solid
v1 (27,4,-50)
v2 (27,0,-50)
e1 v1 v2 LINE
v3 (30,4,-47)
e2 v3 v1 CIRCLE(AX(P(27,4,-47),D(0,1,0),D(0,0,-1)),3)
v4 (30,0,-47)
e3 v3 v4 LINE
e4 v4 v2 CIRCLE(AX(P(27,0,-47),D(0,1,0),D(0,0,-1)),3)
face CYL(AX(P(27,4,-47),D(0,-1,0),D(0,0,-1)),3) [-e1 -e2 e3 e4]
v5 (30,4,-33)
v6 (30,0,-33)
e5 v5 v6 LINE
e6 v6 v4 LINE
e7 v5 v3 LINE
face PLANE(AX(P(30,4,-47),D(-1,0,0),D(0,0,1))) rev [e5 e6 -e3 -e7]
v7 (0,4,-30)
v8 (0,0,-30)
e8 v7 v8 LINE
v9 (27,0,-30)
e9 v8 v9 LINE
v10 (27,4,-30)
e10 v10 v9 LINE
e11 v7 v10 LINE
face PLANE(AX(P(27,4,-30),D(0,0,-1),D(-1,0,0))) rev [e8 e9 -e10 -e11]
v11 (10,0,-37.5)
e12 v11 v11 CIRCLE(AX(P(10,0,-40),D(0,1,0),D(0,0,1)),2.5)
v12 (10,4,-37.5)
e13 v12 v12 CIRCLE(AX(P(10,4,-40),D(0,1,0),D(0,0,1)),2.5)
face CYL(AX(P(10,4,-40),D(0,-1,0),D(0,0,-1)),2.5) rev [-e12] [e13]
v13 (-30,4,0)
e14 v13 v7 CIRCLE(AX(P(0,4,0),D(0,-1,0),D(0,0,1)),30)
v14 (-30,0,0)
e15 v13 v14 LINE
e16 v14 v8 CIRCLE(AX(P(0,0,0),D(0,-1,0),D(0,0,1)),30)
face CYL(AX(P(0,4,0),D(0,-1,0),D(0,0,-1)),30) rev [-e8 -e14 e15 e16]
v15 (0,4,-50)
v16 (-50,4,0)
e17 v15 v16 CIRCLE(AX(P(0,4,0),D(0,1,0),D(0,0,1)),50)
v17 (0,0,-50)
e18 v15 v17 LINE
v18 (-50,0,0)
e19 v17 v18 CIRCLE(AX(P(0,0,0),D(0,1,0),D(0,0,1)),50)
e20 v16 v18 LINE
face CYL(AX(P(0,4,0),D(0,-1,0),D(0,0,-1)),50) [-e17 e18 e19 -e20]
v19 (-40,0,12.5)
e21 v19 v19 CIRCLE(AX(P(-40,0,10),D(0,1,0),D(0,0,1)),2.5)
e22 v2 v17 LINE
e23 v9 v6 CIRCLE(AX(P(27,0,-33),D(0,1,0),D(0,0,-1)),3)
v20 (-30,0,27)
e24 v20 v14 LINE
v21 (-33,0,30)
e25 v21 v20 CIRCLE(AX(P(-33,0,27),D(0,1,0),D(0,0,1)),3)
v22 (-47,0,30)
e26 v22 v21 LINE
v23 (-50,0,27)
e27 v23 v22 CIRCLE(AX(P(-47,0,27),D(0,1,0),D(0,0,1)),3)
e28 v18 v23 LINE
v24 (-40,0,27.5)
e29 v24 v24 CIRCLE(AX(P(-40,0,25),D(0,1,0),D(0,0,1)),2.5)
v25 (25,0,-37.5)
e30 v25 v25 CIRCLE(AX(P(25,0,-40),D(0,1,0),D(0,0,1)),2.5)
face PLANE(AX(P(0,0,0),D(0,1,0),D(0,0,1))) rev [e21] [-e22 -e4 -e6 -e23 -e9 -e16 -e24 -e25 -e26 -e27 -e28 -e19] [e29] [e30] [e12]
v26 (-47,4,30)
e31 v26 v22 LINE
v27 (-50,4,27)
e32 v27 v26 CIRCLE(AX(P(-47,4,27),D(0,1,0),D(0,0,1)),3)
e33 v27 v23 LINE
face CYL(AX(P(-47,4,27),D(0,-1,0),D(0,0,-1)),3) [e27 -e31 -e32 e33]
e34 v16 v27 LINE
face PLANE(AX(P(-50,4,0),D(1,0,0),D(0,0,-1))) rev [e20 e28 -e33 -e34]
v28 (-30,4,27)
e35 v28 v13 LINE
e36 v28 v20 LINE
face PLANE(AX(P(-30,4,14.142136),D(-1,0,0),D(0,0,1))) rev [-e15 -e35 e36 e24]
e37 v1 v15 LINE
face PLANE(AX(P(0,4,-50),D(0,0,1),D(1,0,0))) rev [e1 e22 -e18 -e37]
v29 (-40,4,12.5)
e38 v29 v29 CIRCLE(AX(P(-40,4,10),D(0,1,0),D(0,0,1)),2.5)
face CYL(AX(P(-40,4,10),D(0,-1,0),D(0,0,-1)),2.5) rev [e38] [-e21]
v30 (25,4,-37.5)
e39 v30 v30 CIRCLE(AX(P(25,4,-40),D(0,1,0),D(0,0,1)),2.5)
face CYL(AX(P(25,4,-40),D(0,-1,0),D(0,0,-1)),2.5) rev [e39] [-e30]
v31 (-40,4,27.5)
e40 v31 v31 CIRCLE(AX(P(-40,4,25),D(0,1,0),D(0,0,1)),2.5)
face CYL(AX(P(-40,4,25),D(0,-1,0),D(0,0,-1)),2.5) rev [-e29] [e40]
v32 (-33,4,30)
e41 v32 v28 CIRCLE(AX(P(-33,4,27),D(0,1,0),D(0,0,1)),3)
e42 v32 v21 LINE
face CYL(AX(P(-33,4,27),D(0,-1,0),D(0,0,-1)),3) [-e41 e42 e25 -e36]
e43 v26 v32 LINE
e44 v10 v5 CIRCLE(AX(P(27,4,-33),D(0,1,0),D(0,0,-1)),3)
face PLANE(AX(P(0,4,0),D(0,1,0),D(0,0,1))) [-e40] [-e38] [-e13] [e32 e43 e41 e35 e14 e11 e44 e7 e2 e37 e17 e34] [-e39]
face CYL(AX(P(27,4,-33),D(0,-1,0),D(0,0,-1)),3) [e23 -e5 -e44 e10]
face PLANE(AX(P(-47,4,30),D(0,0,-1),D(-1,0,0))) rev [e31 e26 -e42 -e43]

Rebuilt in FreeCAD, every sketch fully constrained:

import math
import FreeCAD as App
import Part
import Sketcher
from FreeCAD import Vector
Q = App.Units.Quantity

doc = App.newDocument("Part")
body = doc.addObject("PartDesign::Body", "Body")

# Sketch on XZ plane
sketch1 = body.newObject("Sketcher::SketchObject", "Sketch")
sketch1.AttachmentSupport = (doc.getObject("XZ_Plane"), [""])
sketch1.MapMode = "FlatFace"
sketch1.addGeometry([
    Part.LineSegment(Vector(-50, 0, 0), Vector(-50, 27, 0)),  # 0
    Part.ArcOfCircle(Part.Circle(Vector(-47, 27, 0), Vector(0, 0, 1), 3), math.radians(90), math.radians(180)),  # 1
    Part.LineSegment(Vector(-47, 30, 0), Vector(-33, 30, 0)),  # 2
    Part.ArcOfCircle(Part.Circle(Vector(-33, 27, 0), Vector(0, 0, 1), 3), math.radians(0), math.radians(90)),  # 3
    Part.LineSegment(Vector(-30, 27, 0), Vector(-30, 0, 0)),  # 4
    Part.ArcOfCircle(Part.Circle(Vector(0, 0, 0), Vector(0, 0, 1), 30), math.radians(180), math.radians(270)),  # 5
    Part.LineSegment(Vector(0, -30, 0), Vector(27, -30, 0)),  # 6
    Part.ArcOfCircle(Part.Circle(Vector(27, -33, 0), Vector(0, 0, 1), 3), math.radians(0), math.radians(90)),  # 7
    Part.LineSegment(Vector(30, -33, 0), Vector(30, -47, 0)),  # 8
    Part.ArcOfCircle(Part.Circle(Vector(27, -47, 0), Vector(0, 0, 1), 3), math.radians(-90), math.radians(0)),  # 9
    Part.LineSegment(Vector(27, -50, 0), Vector(0, -50, 0)),  # 10
    Part.ArcOfCircle(Part.Circle(Vector(0, 0, 0), Vector(0, 0, 1), 50), math.radians(-180), math.radians(-90)),  # 11
    Part.Circle(Vector(-40, 25, 0), Vector(0, 0, 1), 2.5),  # 12
    Part.Circle(Vector(-40, 10, 0), Vector(0, 0, 1), 2.5),  # 13
    Part.Circle(Vector(10, -40, 0), Vector(0, 0, 1), 2.5),  # 14
    Part.Circle(Vector(25, -40, 0), Vector(0, 0, 1), 2.5),  # 15
], False)
sketch1.addConstraint([
    Sketcher.Constraint("Tangent", 0, 2, 1, 2),
    Sketcher.Constraint("Tangent", 1, 1, 2, 1),
    Sketcher.Constraint("Tangent", 2, 2, 3, 2),
    Sketcher.Constraint("Tangent", 3, 1, 4, 1),
    Sketcher.Constraint("Tangent", 4, 2, 5, 1),
    Sketcher.Constraint("Tangent", 5, 2, 6, 1),
    Sketcher.Constraint("Tangent", 6, 2, 7, 2),
    Sketcher.Constraint("Tangent", 7, 1, 8, 1),
    Sketcher.Constraint("Tangent", 8, 2, 9, 2),
    Sketcher.Constraint("Tangent", 9, 1, 10, 1),
    Sketcher.Constraint("Tangent", 10, 2, 11, 2),
    Sketcher.Constraint("Tangent", 11, 1, 0, 1),
    Sketcher.Constraint("Vertical", 0),
    Sketcher.Constraint("Horizontal", 2),
    Sketcher.Constraint("Vertical", 4),
    Sketcher.Constraint("Horizontal", 6),
    Sketcher.Constraint("Vertical", 8),
    Sketcher.Constraint("Horizontal", 10),
    Sketcher.Constraint("Coincident", 5, 3, -1, 1),
    Sketcher.Constraint("Coincident", 11, 3, -1, 1),
    Sketcher.Constraint("Equal", 1, 3),
    Sketcher.Constraint("Equal", 3, 7),
    Sketcher.Constraint("Equal", 7, 9),
    Sketcher.Constraint("Equal", 12, 13),
    Sketcher.Constraint("Equal", 13, 14),
    Sketcher.Constraint("Equal", 14, 15),
    Sketcher.Constraint("Horizontal", 14, 3, 15, 3),
    Sketcher.Constraint("Vertical", 12, 3, 13, 3),
    Sketcher.Constraint("Equal", 10, 0),
    Sketcher.Constraint("Diameter", 12, Q("5 mm")),
    Sketcher.Constraint("Radius", 1, Q("3 mm")),
    Sketcher.Constraint("Radius", 5, Q("30 mm")),
    Sketcher.Constraint("Radius", 11, Q("50 mm")),
    Sketcher.Constraint("DistanceX", 6, 1, 6, 2, Q("27 mm")),
    Sketcher.Constraint("DistanceX", 12, 3, -1, 1, Q("40 mm")),
    Sketcher.Constraint("DistanceY", -1, 1, 12, 3, Q("25 mm")),
    Sketcher.Constraint("DistanceY", -1, 1, 13, 3, Q("10 mm")),
    Sketcher.Constraint("DistanceX", -1, 1, 14, 3, Q("10 mm")),
    Sketcher.Constraint("DistanceY", 14, 3, -1, 1, Q("40 mm")),
    Sketcher.Constraint("DistanceX", -1, 1, 15, 3, Q("25 mm")),
])
pad1 = body.newObject("PartDesign::Pad", "Pad")
pad1.Profile = sketch1
pad1.Length = 4
pad1.Reversed = True

doc.recompute()
